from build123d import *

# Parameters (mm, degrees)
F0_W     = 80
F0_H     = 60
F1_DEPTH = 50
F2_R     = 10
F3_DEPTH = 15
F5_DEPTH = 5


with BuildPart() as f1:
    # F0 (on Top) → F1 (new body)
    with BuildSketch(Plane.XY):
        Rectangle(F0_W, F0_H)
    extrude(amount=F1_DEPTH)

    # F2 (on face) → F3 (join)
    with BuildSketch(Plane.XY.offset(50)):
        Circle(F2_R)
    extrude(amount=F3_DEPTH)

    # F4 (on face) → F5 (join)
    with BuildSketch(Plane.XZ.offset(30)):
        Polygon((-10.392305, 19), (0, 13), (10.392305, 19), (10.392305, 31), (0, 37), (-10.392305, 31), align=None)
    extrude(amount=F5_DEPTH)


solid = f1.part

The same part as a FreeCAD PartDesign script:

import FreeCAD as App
import Part
import Sketcher
from FreeCAD import Vector
Q = App.Units.Quantity

doc = App.newDocument("Part")
body = doc.addObject("PartDesign::Body", "Body")

# Sketch on XY plane
sketch1 = doc.addObject("Sketcher::SketchObject", "Sketch")
body.addObject(sketch1)
sketch1.AttachmentSupport = (doc.XY_Plane, [""])
sketch1.MapMode = "FlatFace"
sketch1.addGeometry(Part.LineSegment(Vector(-40, 30, 0), Vector(-40, -30, 0)), False)
sketch1.addGeometry(Part.LineSegment(Vector(-40, -30, 0), Vector(40, -30, 0)), False)
sketch1.addGeometry(Part.LineSegment(Vector(40, -30, 0), Vector(40, 30, 0)), False)
sketch1.addGeometry(Part.LineSegment(Vector(40, 30, 0), Vector(-40, 30, 0)), False)
sketch1.addConstraint(Sketcher.Constraint("Coincident", 0, 2, 1, 1))
sketch1.addConstraint(Sketcher.Constraint("Coincident", 1, 2, 2, 1))
sketch1.addConstraint(Sketcher.Constraint("Coincident", 2, 2, 3, 1))
sketch1.addConstraint(Sketcher.Constraint("Coincident", 3, 2, 0, 1))
sketch1.addConstraint(Sketcher.Constraint("Vertical", 0))
sketch1.addConstraint(Sketcher.Constraint("Horizontal", 1))
sketch1.addConstraint(Sketcher.Constraint("Vertical", 2))
sketch1.addConstraint(Sketcher.Constraint("Horizontal", 3))
sketch1.addConstraint(Sketcher.Constraint("Symmetric", 0, 2, 2, 2, -1, 1))
sketch1.addConstraint(Sketcher.Constraint("DistanceX", 1, 1, 1, 2, Q("80 mm")))
sketch1.addConstraint(Sketcher.Constraint("DistanceY", 0, 2, 0, 1, Q("60 mm")))
pad1 = doc.addObject("PartDesign::Pad", "Pad")
body.addObject(pad1)
pad1.Profile = sketch1
pad1.Length = 50

# Sketch on XY plane
sketch2 = doc.addObject("Sketcher::SketchObject", "Sketch001")
body.addObject(sketch2)
sketch2.AttachmentSupport = (doc.XY_Plane, [""])
sketch2.MapMode = "FlatFace"
sketch2.AttachmentOffset = App.Placement(Vector(0, 0, 50), App.Rotation())
sketch2.addGeometry(Part.Circle(Vector(0, 0, 0), Vector(0, 0, 1), 10), False)
sketch2.addConstraint(Sketcher.Constraint("Coincident", 0, 3, -1, 1))
sketch2.addConstraint(Sketcher.Constraint("Diameter", 0, Q("20 mm")))
pad2 = doc.addObject("PartDesign::Pad", "Pad001")
body.addObject(pad2)
pad2.Profile = sketch2
pad2.Length = 15

# Sketch on XZ plane
sketch3 = doc.addObject("Sketcher::SketchObject", "Sketch002")
body.addObject(sketch3)
sketch3.AttachmentSupport = (doc.XZ_Plane, [""])
sketch3.MapMode = "FlatFace"
sketch3.AttachmentOffset = App.Placement(Vector(0, 0, 30), App.Rotation())
sketch3.addGeometry(Part.LineSegment(Vector(-10.392305, 19, 0), Vector(0, 13, 0)), False)
sketch3.addGeometry(Part.LineSegment(Vector(0, 13, 0), Vector(10.392305, 19, 0)), False)
sketch3.addGeometry(Part.LineSegment(Vector(10.392305, 19, 0), Vector(10.392305, 31, 0)), False)
sketch3.addGeometry(Part.LineSegment(Vector(10.392305, 31, 0), Vector(0, 37, 0)), False)
sketch3.addGeometry(Part.LineSegment(Vector(0, 37, 0), Vector(-10.392305, 31, 0)), False)
sketch3.addGeometry(Part.LineSegment(Vector(-10.392305, 31, 0), Vector(-10.392305, 19, 0)), False)
sketch3.addConstraint(Sketcher.Constraint("Coincident", 0, 2, 1, 1))
sketch3.addConstraint(Sketcher.Constraint("Coincident", 1, 2, 2, 1))
sketch3.addConstraint(Sketcher.Constraint("Coincident", 2, 2, 3, 1))
sketch3.addConstraint(Sketcher.Constraint("Coincident", 3, 2, 4, 1))
sketch3.addConstraint(Sketcher.Constraint("Coincident", 4, 2, 5, 1))
sketch3.addConstraint(Sketcher.Constraint("Coincident", 5, 2, 0, 1))
sketch3.addConstraint(Sketcher.Constraint("Vertical", 2))
sketch3.addConstraint(Sketcher.Constraint("Vertical", 5))
sketch3.addConstraint(Sketcher.Constraint("Symmetric", 2, 2, 4, 2, -2))
sketch3.addConstraint(Sketcher.Constraint("PointOnObject", 0, 2, -2))
sketch3.addConstraint(Sketcher.Constraint("PointOnObject", 3, 2, -2))
sketch3.addConstraint(Sketcher.Constraint("Parallel", 0, 3))
sketch3.addConstraint(Sketcher.Constraint("Parallel", 1, 4))
sketch3.addConstraint(Sketcher.Constraint("DistanceY", 2, 1, 2, 2, Q("12 mm")))
sketch3.addConstraint(Sketcher.Constraint("Angle", 0, Q("-30 deg")))
sketch3.addConstraint(Sketcher.Constraint("Distance", 0, Q("12 mm")))
sketch3.addConstraint(Sketcher.Constraint("DistanceY", -1, 1, 0, 2, Q("13 mm")))
pad3 = doc.addObject("PartDesign::Pad", "Pad002")
body.addObject(pad3)
pad3.Profile = sketch3
pad3.Length = 5

doc.recompute()
